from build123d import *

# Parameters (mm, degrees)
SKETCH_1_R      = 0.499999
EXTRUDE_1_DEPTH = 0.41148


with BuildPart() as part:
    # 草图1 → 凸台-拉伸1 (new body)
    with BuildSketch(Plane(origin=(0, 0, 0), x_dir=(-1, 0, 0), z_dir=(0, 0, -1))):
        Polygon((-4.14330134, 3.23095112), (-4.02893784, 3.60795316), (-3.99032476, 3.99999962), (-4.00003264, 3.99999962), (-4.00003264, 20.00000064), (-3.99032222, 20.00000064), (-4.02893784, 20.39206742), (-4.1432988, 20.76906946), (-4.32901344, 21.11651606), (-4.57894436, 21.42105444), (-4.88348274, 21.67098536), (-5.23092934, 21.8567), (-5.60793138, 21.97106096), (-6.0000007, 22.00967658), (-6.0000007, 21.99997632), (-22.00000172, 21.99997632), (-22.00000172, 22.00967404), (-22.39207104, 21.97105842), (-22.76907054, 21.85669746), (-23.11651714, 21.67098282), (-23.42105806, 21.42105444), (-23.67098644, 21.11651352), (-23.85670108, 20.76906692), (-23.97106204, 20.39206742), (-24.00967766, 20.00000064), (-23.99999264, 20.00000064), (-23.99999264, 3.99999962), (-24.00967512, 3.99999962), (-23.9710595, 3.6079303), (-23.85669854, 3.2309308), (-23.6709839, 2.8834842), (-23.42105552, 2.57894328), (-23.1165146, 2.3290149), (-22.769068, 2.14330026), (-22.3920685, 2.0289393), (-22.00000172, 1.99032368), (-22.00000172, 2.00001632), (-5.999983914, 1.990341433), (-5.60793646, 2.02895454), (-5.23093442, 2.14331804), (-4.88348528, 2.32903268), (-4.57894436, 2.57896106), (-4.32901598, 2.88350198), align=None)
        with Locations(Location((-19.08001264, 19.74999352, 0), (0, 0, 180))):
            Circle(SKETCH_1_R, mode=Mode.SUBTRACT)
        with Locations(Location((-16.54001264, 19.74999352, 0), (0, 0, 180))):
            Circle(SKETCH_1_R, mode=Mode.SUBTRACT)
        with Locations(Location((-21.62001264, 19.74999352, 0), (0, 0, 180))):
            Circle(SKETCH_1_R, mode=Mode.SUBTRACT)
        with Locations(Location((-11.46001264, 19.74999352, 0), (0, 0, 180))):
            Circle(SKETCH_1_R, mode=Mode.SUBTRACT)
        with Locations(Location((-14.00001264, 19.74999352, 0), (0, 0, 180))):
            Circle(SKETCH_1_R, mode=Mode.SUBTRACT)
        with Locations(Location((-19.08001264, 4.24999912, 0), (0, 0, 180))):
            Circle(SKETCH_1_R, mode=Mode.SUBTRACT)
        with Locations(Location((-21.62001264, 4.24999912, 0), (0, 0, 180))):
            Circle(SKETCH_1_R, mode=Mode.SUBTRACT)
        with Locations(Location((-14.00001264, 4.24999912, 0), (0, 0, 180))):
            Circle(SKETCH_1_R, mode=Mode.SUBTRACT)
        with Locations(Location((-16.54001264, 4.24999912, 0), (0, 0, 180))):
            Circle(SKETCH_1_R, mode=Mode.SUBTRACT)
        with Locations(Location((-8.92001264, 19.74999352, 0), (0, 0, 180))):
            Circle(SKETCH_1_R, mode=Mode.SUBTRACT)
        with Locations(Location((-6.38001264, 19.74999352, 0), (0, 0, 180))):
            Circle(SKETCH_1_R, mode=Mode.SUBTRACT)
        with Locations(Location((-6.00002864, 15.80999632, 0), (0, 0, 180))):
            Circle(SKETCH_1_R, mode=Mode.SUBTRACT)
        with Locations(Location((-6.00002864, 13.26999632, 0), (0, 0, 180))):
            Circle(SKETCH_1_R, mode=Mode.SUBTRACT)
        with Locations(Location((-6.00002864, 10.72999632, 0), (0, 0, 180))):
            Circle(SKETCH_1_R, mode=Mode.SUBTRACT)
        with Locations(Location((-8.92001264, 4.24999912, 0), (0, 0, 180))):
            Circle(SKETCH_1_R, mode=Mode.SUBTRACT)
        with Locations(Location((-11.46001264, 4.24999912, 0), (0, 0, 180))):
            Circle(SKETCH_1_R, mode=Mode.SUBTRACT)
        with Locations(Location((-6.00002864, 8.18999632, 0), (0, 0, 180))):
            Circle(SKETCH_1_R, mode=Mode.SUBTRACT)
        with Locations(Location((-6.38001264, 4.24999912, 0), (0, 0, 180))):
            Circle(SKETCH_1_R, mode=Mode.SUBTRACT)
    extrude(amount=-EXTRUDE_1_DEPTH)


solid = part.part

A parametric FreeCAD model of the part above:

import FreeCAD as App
import Part
import Sketcher
from FreeCAD import Vector

doc = App.newDocument("Part")
body = doc.addObject("PartDesign::Body", "Body")

# Sketch on XY plane
sketch1 = doc.addObject("Sketcher::SketchObject", "Sketch")
body.addObject(sketch1)
sketch1.AttachmentSupport = (doc.XY_Plane, [""])
sketch1.MapMode = "FlatFace"
sketch1.addGeometry([
    Part.LineSegment(Vector(4.143301, 3.230951, 0), Vector(4.028938, 3.607953, 0)),  # 0
    Part.LineSegment(Vector(4.028938, 3.607953, 0), Vector(3.990325, 4, 0)),  # 1
    Part.LineSegment(Vector(3.990325, 4, 0), Vector(4.000033, 4, 0)),  # 2
    Part.LineSegment(Vector(4.000033, 4, 0), Vector(4.000033, 20.000001, 0)),  # 3
    Part.LineSegment(Vector(4.000033, 20.000001, 0), Vector(3.990322, 20.000001, 0)),  # 4
    Part.LineSegment(Vector(3.990322, 20.000001, 0), Vector(4.028938, 20.392067, 0)),  # 5
    Part.LineSegment(Vector(4.028938, 20.392067, 0), Vector(4.143299, 20.769069, 0)),  # 6
    Part.LineSegment(Vector(4.143299, 20.769069, 0), Vector(4.329013, 21.116516, 0)),  # 7
    Part.LineSegment(Vector(4.329013, 21.116516, 0), Vector(4.578944, 21.421054, 0)),  # 8
    Part.LineSegment(Vector(4.578944, 21.421054, 0), Vector(4.883483, 21.670985, 0)),  # 9
    Part.LineSegment(Vector(4.883483, 21.670985, 0), Vector(5.230929, 21.8567, 0)),  # 10
    Part.LineSegment(Vector(5.230929, 21.8567, 0), Vector(5.607931, 21.971061, 0)),  # 11
    Part.LineSegment(Vector(5.607931, 21.971061, 0), Vector(6.000001, 22.009677, 0)),  # 12
    Part.LineSegment(Vector(6.000001, 22.009677, 0), Vector(6.000001, 21.999976, 0)),  # 13
    Part.LineSegment(Vector(6.000001, 21.999976, 0), Vector(22.000002, 21.999976, 0)),  # 14
    Part.LineSegment(Vector(22.000002, 21.999976, 0), Vector(22.000002, 22.009674, 0)),  # 15
    Part.LineSegment(Vector(22.000002, 22.009674, 0), Vector(22.392071, 21.971058, 0)),  # 16
    Part.LineSegment(Vector(22.392071, 21.971058, 0), Vector(22.769071, 21.856697, 0)),  # 17
    Part.LineSegment(Vector(22.769071, 21.856697, 0), Vector(23.116517, 21.670983, 0)),  # 18
    Part.LineSegment(Vector(23.116517, 21.670983, 0), Vector(23.421058, 21.421054, 0)),  # 19
    Part.LineSegment(Vector(23.421058, 21.421054, 0), Vector(23.670986, 21.116514, 0)),  # 20
    Part.LineSegment(Vector(23.670986, 21.116514, 0), Vector(23.856701, 20.769067, 0)),  # 21
    Part.LineSegment(Vector(23.856701, 20.769067, 0), Vector(23.971062, 20.392067, 0)),  # 22
    Part.LineSegment(Vector(23.971062, 20.392067, 0), Vector(24.009678, 20.000001, 0)),  # 23
    Part.LineSegment(Vector(24.009678, 20.000001, 0), Vector(23.999993, 20.000001, 0)),  # 24
    Part.LineSegment(Vector(23.999993, 20.000001, 0), Vector(23.999993, 4, 0)),  # 25
    Part.LineSegment(Vector(23.999993, 4, 0), Vector(24.009675, 4, 0)),  # 26
    Part.LineSegment(Vector(24.009675, 4, 0), Vector(23.971059, 3.60793, 0)),  # 27
    Part.LineSegment(Vector(23.971059, 3.60793, 0), Vector(23.856699, 3.230931, 0)),  # 28
    Part.LineSegment(Vector(23.856699, 3.230931, 0), Vector(23.670984, 2.883484, 0)),  # 29
    Part.LineSegment(Vector(23.670984, 2.883484, 0), Vector(23.421056, 2.578943, 0)),  # 30
    Part.LineSegment(Vector(23.421056, 2.578943, 0), Vector(23.116515, 2.329015, 0)),  # 31
    Part.LineSegment(Vector(23.116515, 2.329015, 0), Vector(22.769068, 2.1433, 0)),  # 32
    Part.LineSegment(Vector(22.769068, 2.1433, 0), Vector(22.392069, 2.028939, 0)),  # 33
    Part.LineSegment(Vector(22.392069, 2.028939, 0), Vector(22.000002, 1.990324, 0)),  # 34
    Part.LineSegment(Vector(22.000002, 1.990324, 0), Vector(22.000002, 2.000016, 0)),  # 35
    Part.LineSegment(Vector(22.000002, 2.000016, 0), Vector(5.999984, 1.990341, 0)),  # 36
    Part.LineSegment(Vector(5.999984, 1.990341, 0), Vector(5.607936, 2.028955, 0)),  # 37
    Part.LineSegment(Vector(5.607936, 2.028955, 0), Vector(5.230934, 2.143318, 0)),  # 38
    Part.LineSegment(Vector(5.230934, 2.143318, 0), Vector(4.883485, 2.329033, 0)),  # 39
    Part.LineSegment(Vector(4.883485, 2.329033, 0), Vector(4.578944, 2.578961, 0)),  # 40
    Part.LineSegment(Vector(4.578944, 2.578961, 0), Vector(4.329016, 2.883502, 0)),  # 41
    Part.LineSegment(Vector(4.329016, 2.883502, 0), Vector(4.143301, 3.230951, 0)),  # 42
    Part.Circle(Vector(21.620013, 4.249999, 0), Vector(0, 0, 1), 0.499999),  # 43
    Part.Circle(Vector(19.080013, 4.249999, 0), Vector(0, 0, 1), 0.499999),  # 44
    Part.Circle(Vector(16.540013, 4.249999, 0), Vector(0, 0, 1), 0.499999),  # 45
    Part.Circle(Vector(14.000013, 4.249999, 0), Vector(0, 0, 1), 0.499999),  # 46
    Part.Circle(Vector(11.460013, 4.249999, 0), Vector(0, 0, 1), 0.499999),  # 47
    Part.Circle(Vector(8.920013, 4.249999, 0), Vector(0, 0, 1), 0.499999),  # 48
    Part.Circle(Vector(6.380013, 4.249999, 0), Vector(0, 0, 1), 0.499999),  # 49
    Part.Circle(Vector(6.000029, 8.189996, 0), Vector(0, 0, 1), 0.499999),  # 50
    Part.Circle(Vector(6.000029, 10.729996, 0), Vector(0, 0, 1), 0.499999),  # 51
    Part.Circle(Vector(21.620013, 19.749994, 0), Vector(0, 0, 1), 0.499999),  # 52
    Part.Circle(Vector(19.080013, 19.749994, 0), Vector(0, 0, 1), 0.499999),  # 53
    Part.Circle(Vector(16.540013, 19.749994, 0), Vector(0, 0, 1), 0.499999),  # 54
    Part.Circle(Vector(14.000013, 19.749994, 0), Vector(0, 0, 1), 0.499999),  # 55
    Part.Circle(Vector(6.000029, 13.269996, 0), Vector(0, 0, 1), 0.499999),  # 56
    Part.Circle(Vector(6.000029, 15.809996, 0), Vector(0, 0, 1), 0.499999),  # 57
    Part.Circle(Vector(11.460013, 19.749994, 0), Vector(0, 0, 1), 0.499999),  # 58
    Part.Circle(Vector(8.920013, 19.749994, 0), Vector(0, 0, 1), 0.499999),  # 59
    Part.Circle(Vector(6.380013, 19.749994, 0), Vector(0, 0, 1), 0.499999),  # 60
], False)
sketch1.addConstraint([
    Sketcher.Constraint("Coincident", 0, 2, 1, 1),
    Sketcher.Constraint("Coincident", 1, 2, 2, 1),
    Sketcher.Constraint("Coincident", 2, 2, 3, 1),
    Sketcher.Constraint("Coincident", 3, 2, 4, 1),
    Sketcher.Constraint("Coincident", 4, 2, 5, 1),
    Sketcher.Constraint("Coincident", 5, 2, 6, 1),
    Sketcher.Constraint("Coincident", 6, 2, 7, 1),
    Sketcher.Constraint("Coincident", 7, 2, 8, 1),
    Sketcher.Constraint("Coincident", 8, 2, 9, 1),
    Sketcher.Constraint("Coincident", 9, 2, 10, 1),
    Sketcher.Constraint("Coincident", 10, 2, 11, 1),
    Sketcher.Constraint("Coincident", 11, 2, 12, 1),
    Sketcher.Constraint("Coincident", 12, 2, 13, 1),
    Sketcher.Constraint("Coincident", 13, 2, 14, 1),
    Sketcher.Constraint("Coincident", 14, 2, 15, 1),
    Sketcher.Constraint("Coincident", 15, 2, 16, 1),
    Sketcher.Constraint("Coincident", 16, 2, 17, 1),
    Sketcher.Constraint("Coincident", 17, 2, 18, 1),
    Sketcher.Constraint("Coincident", 18, 2, 19, 1),
    Sketcher.Constraint("Coincident", 19, 2, 20, 1),
    Sketcher.Constraint("Coincident", 20, 2, 21, 1),
    Sketcher.Constraint("Coincident", 21, 2, 22, 1),
    Sketcher.Constraint("Coincident", 22, 2, 23, 1),
    Sketcher.Constraint("Coincident", 23, 2, 24, 1),
    Sketcher.Constraint("Coincident", 24, 2, 25, 1),
    Sketcher.Constraint("Coincident", 25, 2, 26, 1),
    Sketcher.Constraint("Coincident", 26, 2, 27, 1),
    Sketcher.Constraint("Coincident", 27, 2, 28, 1),
    Sketcher.Constraint("Coincident", 28, 2, 29, 1),
    Sketcher.Constraint("Coincident", 29, 2, 30, 1),
    Sketcher.Constraint("Coincident", 30, 2, 31, 1),
    Sketcher.Constraint("Coincident", 31, 2, 32, 1),
    Sketcher.Constraint("Coincident", 32, 2, 33, 1),
    Sketcher.Constraint("Coincident", 33, 2, 34, 1),
    Sketcher.Constraint("Coincident", 34, 2, 35, 1),
    Sketcher.Constraint("Coincident", 35, 2, 36, 1),
    Sketcher.Constraint("Coincident", 36, 2, 37, 1),
    Sketcher.Constraint("Coincident", 37, 2, 38, 1),
    Sketcher.Constraint("Coincident", 38, 2, 39, 1),
    Sketcher.Constraint("Coincident", 39, 2, 40, 1),
    Sketcher.Constraint("Coincident", 40, 2, 41, 1),
    Sketcher.Constraint("Coincident", 41, 2, 42, 1),
    Sketcher.Constraint("Coincident", 42, 2, 0, 1),
    Sketcher.Constraint("Horizontal", 2),
    Sketcher.Constraint("Vertical", 3),
    Sketcher.Constraint("Horizontal", 4),
    Sketcher.Constraint("Vertical", 13),
    Sketcher.Constraint("Horizontal", 14),
    Sketcher.Constraint("Vertical", 15),
    Sketcher.Constraint("Horizontal", 24),
    Sketcher.Constraint("Vertical", 25),
    Sketcher.Constraint("Horizontal", 26),
    Sketcher.Constraint("Vertical", 35),
    Sketcher.Constraint("Diameter", 43, 0.999998),
    Sketcher.Constraint("Diameter", 44, 0.999998),
    Sketcher.Constraint("Diameter", 45, 0.999998),
    Sketcher.Constraint("Diameter", 46, 0.999998),
    Sketcher.Constraint("Diameter", 47, 0.999998),
    Sketcher.Constraint("Diameter", 48, 0.999998),
    Sketcher.Constraint("Diameter", 49, 0.999998),
    Sketcher.Constraint("Diameter", 50, 0.999998),
    Sketcher.Constraint("Diameter", 51, 0.999998),
    Sketcher.Constraint("Diameter", 52, 0.999998),
    Sketcher.Constraint("Diameter", 53, 0.999998),
    Sketcher.Constraint("Diameter", 54, 0.999998),
    Sketcher.Constraint("Diameter", 55, 0.999998),
    Sketcher.Constraint("Diameter", 56, 0.999998),
    Sketcher.Constraint("Diameter", 57, 0.999998),
    Sketcher.Constraint("Diameter", 58, 0.999998),
    Sketcher.Constraint("Diameter", 59, 0.999998),
    Sketcher.Constraint("Diameter", 60, 0.999998),
    Sketcher.Constraint("DistanceX", 14, 1, 14, 2, 16.000001),
    Sketcher.Constraint("DistanceY", 3, 1, 3, 2, 16.000001),
    Sketcher.Constraint("DistanceY", 25, 2, 25, 1, 16.000001),
    Sketcher.Constraint("DistanceY", -1, 1, 1, 2, 4.0),
    Sketcher.Constraint("DistanceX", -1, 1, 12, 2, 6.000001),
    Sketcher.Constraint("DistanceY", -1, 1, 23, 2, 20.000001),
    Sketcher.Constraint("DistanceX", -1, 1, 34, 2, 22.000002),
    Sketcher.Constraint("DistanceY", -1, 1, 43, 3, 4.249999),
    Sketcher.Constraint("DistanceY", -1, 1, 44, 3, 4.249999),
    Sketcher.Constraint("DistanceY", -1, 1, 45, 3, 4.249999),
    Sketcher.Constraint("DistanceY", -1, 1, 46, 3, 4.249999),
    Sketcher.Constraint("DistanceY", -1, 1, 47, 3, 4.249999),
    Sketcher.Constraint("DistanceY", -1, 1, 48, 3, 4.249999),
    Sketcher.Constraint("DistanceY", -1, 1, 49, 3, 4.249999),
    Sketcher.Constraint("DistanceY", 13, 2, 13, 1, 0.0097),
    Sketcher.Constraint("DistanceX", 4, 2, 4, 1, 0.00971),
    Sketcher.Constraint("DistanceX", -1, 1, 6, 2, 4.143299),
    Sketcher.Constraint("DistanceY", -1, 1, 10, 2, 21.8567),
    Sketcher.Constraint("DistanceX", -1, 1, 21, 2, 23.856701),
    Sketcher.Constraint("DistanceX", -1, 1, 28, 2, 23.856699),
    Sketcher.Constraint("DistanceY", -1, 1, 32, 2, 2.1433),
    Sketcher.Constraint("DistanceY", -1, 1, 41, 2, 2.883502),
    Sketcher.Constraint("DistanceX", -1, 1, 42, 2, 4.143301),
    Sketcher.Constraint("Distance", 36, 16.000021),
    Sketcher.Constraint("Distance", 39, 0.393968),
    Sketcher.Constraint("Distance", 42, 0.393968),
    Sketcher.Constraint("DistanceX", 2, 1, 2, 2, 0.009708),
    Sketcher.Constraint("DistanceX", 24, 2, 24, 1, 0.009685),
    Sketcher.Constraint("DistanceX", 26, 1, 26, 2, 0.009682),
    Sketcher.Constraint("DistanceY", 15, 1, 15, 2, 0.009698),
    Sketcher.Constraint("DistanceY", 35, 1, 35, 2, 0.009693),
    Sketcher.Constraint("DistanceX", -1, 1, 50, 3, 6.000029),
    Sketcher.Constraint("DistanceX", -1, 1, 51, 3, 6.000029),
    Sketcher.Constraint("DistanceX", -1, 1, 56, 3, 6.000029),
    Sketcher.Constraint("DistanceX", -1, 1, 57, 3, 6.000029),
    Sketcher.Constraint("DistanceY", -1, 1, 6, 2, 20.769069),
    Sketcher.Constraint("DistanceX", -1, 1, 10, 2, 5.230929),
    Sketcher.Constraint("DistanceX", -1, 1, 11, 2, 5.607931),
    Sketcher.Constraint("DistanceY", -1, 1, 11, 2, 21.971061),
    Sketcher.Constraint("DistanceX", -1, 1, 16, 2, 22.392071),
    Sketcher.Constraint("DistanceY", -1, 1, 16, 2, 21.971058),
    Sketcher.Constraint("DistanceX", -1, 1, 17, 2, 22.769071),
    Sketcher.Constraint("DistanceX", -1, 1, 19, 2, 23.421058),
    Sketcher.Constraint("DistanceX", -1, 1, 27, 2, 23.971059),
    Sketcher.Constraint("DistanceY", -1, 1, 27, 2, 3.60793),
    Sketcher.Constraint("DistanceY", -1, 1, 28, 2, 3.230931),
    Sketcher.Constraint("DistanceX", -1, 1, 32, 2, 22.769068),
    Sketcher.Constraint("DistanceX", -1, 1, 33, 2, 22.392069),
    Sketcher.Constraint("DistanceY", -1, 1, 33, 2, 2.028939),
    Sketcher.Constraint("DistanceY", -1, 1, 36, 2, 1.990341),
    Sketcher.Constraint("DistanceY", -1, 1, 38, 2, 2.143318),
    Sketcher.Constraint("DistanceY", -1, 1, 40, 2, 2.578961),
    Sketcher.Constraint("DistanceY", -1, 1, 42, 2, 3.230951),
    Sketcher.Constraint("Distance", 0, 0.393966),
    Sketcher.Constraint("Distance", 1, 0.393943),
    Sketcher.Constraint("Distance", 5, 0.393964),
    Sketcher.Constraint("Distance", 6, 0.393966),
    Sketcher.Constraint("Distance", 7, 0.393966),
    Sketcher.Constraint("Distance", 8, 0.393966),
    Sketcher.Constraint("Distance", 9, 0.393966),
    Sketcher.Constraint("Distance", 10, 0.393966),
    Sketcher.Constraint("Distance", 12, 0.393966),
    Sketcher.Constraint("Distance", 17, 0.393963),
    Sketcher.Constraint("Distance", 18, 0.393966),
    Sketcher.Constraint("Distance", 19, 0.393966),
    Sketcher.Constraint("Distance", 20, 0.393966),
    Sketcher.Constraint("Distance", 21, 0.393966),
    Sketcher.Constraint("Distance", 22, 0.393963),
    Sketcher.Constraint("Distance", 23, 0.393964),
    Sketcher.Constraint("Distance", 27, 0.393966),
    Sketcher.Constraint("Distance", 29, 0.393966),
    Sketcher.Constraint("Distance", 30, 0.393966),
    Sketcher.Constraint("Distance", 31, 0.393966),
    Sketcher.Constraint("Distance", 32, 0.393966),
    Sketcher.Constraint("Distance", 34, 0.393964),
    Sketcher.Constraint("Distance", 37, 0.393944),
    Sketcher.Constraint("Distance", 38, 0.393966),
    Sketcher.Constraint("Distance", 40, 0.393966),
    Sketcher.Constraint("Distance", 41, 0.393966),
    Sketcher.Constraint("DistanceX", -1, 1, 43, 3, 21.620013),
    Sketcher.Constraint("DistanceX", -1, 1, 44, 3, 19.080013),
    Sketcher.Constraint("DistanceX", -1, 1, 45, 3, 16.540013),
    Sketcher.Constraint("DistanceX", -1, 1, 46, 3, 14.000013),
    Sketcher.Constraint("DistanceX", -1, 1, 47, 3, 11.460013),
    Sketcher.Constraint("DistanceX", -1, 1, 48, 3, 8.920013),
    Sketcher.Constraint("DistanceX", -1, 1, 49, 3, 6.380013),
    Sketcher.Constraint("DistanceY", -1, 1, 50, 3, 8.189996),
    Sketcher.Constraint("DistanceY", -1, 1, 51, 3, 10.729996),
    Sketcher.Constraint("DistanceX", -1, 1, 52, 3, 21.620013),
    Sketcher.Constraint("DistanceY", -1, 1, 52, 3, 19.749994),
    Sketcher.Constraint("DistanceX", -1, 1, 53, 3, 19.080013),
    Sketcher.Constraint("DistanceY", -1, 1, 53, 3, 19.749994),
    Sketcher.Constraint("DistanceX", -1, 1, 54, 3, 16.540013),
    Sketcher.Constraint("DistanceY", -1, 1, 54, 3, 19.749994),
    Sketcher.Constraint("DistanceX", -1, 1, 55, 3, 14.000013),
    Sketcher.Constraint("DistanceY", -1, 1, 55, 3, 19.749994),
    Sketcher.Constraint("DistanceY", -1, 1, 56, 3, 13.269996),
    Sketcher.Constraint("DistanceY", -1, 1, 57, 3, 15.809996),
    Sketcher.Constraint("DistanceX", -1, 1, 58, 3, 11.460013),
    Sketcher.Constraint("DistanceY", -1, 1, 58, 3, 19.749994),
    Sketcher.Constraint("DistanceX", -1, 1, 59, 3, 8.920013),
    Sketcher.Constraint("DistanceY", -1, 1, 59, 3, 19.749994),
    Sketcher.Constraint("DistanceX", -1, 1, 60, 3, 6.380013),
    Sketcher.Constraint("DistanceY", -1, 1, 60, 3, 19.749994),
    Sketcher.Constraint("DistanceX", -1, 1, 0, 2, 4.028938),
    Sketcher.Constraint("DistanceX", -1, 1, 7, 2, 4.329013),
    Sketcher.Constraint("DistanceX", -1, 1, 8, 2, 4.578944),
    Sketcher.Constraint("DistanceX", -1, 1, 18, 2, 23.116517),
    Sketcher.Constraint("DistanceX", -1, 1, 20, 2, 23.670986),
    Sketcher.Constraint("DistanceX", -1, 1, 29, 2, 23.670984),
    Sketcher.Constraint("DistanceX", -1, 1, 30, 2, 23.421056),
    Sketcher.Constraint("DistanceX", -1, 1, 37, 2, 5.607936),
])
pad1 = doc.addObject("PartDesign::Pad", "Pad")
body.addObject(pad1)
pad1.Profile = sketch1
pad1.Length = 0.41148

doc.recompute()
